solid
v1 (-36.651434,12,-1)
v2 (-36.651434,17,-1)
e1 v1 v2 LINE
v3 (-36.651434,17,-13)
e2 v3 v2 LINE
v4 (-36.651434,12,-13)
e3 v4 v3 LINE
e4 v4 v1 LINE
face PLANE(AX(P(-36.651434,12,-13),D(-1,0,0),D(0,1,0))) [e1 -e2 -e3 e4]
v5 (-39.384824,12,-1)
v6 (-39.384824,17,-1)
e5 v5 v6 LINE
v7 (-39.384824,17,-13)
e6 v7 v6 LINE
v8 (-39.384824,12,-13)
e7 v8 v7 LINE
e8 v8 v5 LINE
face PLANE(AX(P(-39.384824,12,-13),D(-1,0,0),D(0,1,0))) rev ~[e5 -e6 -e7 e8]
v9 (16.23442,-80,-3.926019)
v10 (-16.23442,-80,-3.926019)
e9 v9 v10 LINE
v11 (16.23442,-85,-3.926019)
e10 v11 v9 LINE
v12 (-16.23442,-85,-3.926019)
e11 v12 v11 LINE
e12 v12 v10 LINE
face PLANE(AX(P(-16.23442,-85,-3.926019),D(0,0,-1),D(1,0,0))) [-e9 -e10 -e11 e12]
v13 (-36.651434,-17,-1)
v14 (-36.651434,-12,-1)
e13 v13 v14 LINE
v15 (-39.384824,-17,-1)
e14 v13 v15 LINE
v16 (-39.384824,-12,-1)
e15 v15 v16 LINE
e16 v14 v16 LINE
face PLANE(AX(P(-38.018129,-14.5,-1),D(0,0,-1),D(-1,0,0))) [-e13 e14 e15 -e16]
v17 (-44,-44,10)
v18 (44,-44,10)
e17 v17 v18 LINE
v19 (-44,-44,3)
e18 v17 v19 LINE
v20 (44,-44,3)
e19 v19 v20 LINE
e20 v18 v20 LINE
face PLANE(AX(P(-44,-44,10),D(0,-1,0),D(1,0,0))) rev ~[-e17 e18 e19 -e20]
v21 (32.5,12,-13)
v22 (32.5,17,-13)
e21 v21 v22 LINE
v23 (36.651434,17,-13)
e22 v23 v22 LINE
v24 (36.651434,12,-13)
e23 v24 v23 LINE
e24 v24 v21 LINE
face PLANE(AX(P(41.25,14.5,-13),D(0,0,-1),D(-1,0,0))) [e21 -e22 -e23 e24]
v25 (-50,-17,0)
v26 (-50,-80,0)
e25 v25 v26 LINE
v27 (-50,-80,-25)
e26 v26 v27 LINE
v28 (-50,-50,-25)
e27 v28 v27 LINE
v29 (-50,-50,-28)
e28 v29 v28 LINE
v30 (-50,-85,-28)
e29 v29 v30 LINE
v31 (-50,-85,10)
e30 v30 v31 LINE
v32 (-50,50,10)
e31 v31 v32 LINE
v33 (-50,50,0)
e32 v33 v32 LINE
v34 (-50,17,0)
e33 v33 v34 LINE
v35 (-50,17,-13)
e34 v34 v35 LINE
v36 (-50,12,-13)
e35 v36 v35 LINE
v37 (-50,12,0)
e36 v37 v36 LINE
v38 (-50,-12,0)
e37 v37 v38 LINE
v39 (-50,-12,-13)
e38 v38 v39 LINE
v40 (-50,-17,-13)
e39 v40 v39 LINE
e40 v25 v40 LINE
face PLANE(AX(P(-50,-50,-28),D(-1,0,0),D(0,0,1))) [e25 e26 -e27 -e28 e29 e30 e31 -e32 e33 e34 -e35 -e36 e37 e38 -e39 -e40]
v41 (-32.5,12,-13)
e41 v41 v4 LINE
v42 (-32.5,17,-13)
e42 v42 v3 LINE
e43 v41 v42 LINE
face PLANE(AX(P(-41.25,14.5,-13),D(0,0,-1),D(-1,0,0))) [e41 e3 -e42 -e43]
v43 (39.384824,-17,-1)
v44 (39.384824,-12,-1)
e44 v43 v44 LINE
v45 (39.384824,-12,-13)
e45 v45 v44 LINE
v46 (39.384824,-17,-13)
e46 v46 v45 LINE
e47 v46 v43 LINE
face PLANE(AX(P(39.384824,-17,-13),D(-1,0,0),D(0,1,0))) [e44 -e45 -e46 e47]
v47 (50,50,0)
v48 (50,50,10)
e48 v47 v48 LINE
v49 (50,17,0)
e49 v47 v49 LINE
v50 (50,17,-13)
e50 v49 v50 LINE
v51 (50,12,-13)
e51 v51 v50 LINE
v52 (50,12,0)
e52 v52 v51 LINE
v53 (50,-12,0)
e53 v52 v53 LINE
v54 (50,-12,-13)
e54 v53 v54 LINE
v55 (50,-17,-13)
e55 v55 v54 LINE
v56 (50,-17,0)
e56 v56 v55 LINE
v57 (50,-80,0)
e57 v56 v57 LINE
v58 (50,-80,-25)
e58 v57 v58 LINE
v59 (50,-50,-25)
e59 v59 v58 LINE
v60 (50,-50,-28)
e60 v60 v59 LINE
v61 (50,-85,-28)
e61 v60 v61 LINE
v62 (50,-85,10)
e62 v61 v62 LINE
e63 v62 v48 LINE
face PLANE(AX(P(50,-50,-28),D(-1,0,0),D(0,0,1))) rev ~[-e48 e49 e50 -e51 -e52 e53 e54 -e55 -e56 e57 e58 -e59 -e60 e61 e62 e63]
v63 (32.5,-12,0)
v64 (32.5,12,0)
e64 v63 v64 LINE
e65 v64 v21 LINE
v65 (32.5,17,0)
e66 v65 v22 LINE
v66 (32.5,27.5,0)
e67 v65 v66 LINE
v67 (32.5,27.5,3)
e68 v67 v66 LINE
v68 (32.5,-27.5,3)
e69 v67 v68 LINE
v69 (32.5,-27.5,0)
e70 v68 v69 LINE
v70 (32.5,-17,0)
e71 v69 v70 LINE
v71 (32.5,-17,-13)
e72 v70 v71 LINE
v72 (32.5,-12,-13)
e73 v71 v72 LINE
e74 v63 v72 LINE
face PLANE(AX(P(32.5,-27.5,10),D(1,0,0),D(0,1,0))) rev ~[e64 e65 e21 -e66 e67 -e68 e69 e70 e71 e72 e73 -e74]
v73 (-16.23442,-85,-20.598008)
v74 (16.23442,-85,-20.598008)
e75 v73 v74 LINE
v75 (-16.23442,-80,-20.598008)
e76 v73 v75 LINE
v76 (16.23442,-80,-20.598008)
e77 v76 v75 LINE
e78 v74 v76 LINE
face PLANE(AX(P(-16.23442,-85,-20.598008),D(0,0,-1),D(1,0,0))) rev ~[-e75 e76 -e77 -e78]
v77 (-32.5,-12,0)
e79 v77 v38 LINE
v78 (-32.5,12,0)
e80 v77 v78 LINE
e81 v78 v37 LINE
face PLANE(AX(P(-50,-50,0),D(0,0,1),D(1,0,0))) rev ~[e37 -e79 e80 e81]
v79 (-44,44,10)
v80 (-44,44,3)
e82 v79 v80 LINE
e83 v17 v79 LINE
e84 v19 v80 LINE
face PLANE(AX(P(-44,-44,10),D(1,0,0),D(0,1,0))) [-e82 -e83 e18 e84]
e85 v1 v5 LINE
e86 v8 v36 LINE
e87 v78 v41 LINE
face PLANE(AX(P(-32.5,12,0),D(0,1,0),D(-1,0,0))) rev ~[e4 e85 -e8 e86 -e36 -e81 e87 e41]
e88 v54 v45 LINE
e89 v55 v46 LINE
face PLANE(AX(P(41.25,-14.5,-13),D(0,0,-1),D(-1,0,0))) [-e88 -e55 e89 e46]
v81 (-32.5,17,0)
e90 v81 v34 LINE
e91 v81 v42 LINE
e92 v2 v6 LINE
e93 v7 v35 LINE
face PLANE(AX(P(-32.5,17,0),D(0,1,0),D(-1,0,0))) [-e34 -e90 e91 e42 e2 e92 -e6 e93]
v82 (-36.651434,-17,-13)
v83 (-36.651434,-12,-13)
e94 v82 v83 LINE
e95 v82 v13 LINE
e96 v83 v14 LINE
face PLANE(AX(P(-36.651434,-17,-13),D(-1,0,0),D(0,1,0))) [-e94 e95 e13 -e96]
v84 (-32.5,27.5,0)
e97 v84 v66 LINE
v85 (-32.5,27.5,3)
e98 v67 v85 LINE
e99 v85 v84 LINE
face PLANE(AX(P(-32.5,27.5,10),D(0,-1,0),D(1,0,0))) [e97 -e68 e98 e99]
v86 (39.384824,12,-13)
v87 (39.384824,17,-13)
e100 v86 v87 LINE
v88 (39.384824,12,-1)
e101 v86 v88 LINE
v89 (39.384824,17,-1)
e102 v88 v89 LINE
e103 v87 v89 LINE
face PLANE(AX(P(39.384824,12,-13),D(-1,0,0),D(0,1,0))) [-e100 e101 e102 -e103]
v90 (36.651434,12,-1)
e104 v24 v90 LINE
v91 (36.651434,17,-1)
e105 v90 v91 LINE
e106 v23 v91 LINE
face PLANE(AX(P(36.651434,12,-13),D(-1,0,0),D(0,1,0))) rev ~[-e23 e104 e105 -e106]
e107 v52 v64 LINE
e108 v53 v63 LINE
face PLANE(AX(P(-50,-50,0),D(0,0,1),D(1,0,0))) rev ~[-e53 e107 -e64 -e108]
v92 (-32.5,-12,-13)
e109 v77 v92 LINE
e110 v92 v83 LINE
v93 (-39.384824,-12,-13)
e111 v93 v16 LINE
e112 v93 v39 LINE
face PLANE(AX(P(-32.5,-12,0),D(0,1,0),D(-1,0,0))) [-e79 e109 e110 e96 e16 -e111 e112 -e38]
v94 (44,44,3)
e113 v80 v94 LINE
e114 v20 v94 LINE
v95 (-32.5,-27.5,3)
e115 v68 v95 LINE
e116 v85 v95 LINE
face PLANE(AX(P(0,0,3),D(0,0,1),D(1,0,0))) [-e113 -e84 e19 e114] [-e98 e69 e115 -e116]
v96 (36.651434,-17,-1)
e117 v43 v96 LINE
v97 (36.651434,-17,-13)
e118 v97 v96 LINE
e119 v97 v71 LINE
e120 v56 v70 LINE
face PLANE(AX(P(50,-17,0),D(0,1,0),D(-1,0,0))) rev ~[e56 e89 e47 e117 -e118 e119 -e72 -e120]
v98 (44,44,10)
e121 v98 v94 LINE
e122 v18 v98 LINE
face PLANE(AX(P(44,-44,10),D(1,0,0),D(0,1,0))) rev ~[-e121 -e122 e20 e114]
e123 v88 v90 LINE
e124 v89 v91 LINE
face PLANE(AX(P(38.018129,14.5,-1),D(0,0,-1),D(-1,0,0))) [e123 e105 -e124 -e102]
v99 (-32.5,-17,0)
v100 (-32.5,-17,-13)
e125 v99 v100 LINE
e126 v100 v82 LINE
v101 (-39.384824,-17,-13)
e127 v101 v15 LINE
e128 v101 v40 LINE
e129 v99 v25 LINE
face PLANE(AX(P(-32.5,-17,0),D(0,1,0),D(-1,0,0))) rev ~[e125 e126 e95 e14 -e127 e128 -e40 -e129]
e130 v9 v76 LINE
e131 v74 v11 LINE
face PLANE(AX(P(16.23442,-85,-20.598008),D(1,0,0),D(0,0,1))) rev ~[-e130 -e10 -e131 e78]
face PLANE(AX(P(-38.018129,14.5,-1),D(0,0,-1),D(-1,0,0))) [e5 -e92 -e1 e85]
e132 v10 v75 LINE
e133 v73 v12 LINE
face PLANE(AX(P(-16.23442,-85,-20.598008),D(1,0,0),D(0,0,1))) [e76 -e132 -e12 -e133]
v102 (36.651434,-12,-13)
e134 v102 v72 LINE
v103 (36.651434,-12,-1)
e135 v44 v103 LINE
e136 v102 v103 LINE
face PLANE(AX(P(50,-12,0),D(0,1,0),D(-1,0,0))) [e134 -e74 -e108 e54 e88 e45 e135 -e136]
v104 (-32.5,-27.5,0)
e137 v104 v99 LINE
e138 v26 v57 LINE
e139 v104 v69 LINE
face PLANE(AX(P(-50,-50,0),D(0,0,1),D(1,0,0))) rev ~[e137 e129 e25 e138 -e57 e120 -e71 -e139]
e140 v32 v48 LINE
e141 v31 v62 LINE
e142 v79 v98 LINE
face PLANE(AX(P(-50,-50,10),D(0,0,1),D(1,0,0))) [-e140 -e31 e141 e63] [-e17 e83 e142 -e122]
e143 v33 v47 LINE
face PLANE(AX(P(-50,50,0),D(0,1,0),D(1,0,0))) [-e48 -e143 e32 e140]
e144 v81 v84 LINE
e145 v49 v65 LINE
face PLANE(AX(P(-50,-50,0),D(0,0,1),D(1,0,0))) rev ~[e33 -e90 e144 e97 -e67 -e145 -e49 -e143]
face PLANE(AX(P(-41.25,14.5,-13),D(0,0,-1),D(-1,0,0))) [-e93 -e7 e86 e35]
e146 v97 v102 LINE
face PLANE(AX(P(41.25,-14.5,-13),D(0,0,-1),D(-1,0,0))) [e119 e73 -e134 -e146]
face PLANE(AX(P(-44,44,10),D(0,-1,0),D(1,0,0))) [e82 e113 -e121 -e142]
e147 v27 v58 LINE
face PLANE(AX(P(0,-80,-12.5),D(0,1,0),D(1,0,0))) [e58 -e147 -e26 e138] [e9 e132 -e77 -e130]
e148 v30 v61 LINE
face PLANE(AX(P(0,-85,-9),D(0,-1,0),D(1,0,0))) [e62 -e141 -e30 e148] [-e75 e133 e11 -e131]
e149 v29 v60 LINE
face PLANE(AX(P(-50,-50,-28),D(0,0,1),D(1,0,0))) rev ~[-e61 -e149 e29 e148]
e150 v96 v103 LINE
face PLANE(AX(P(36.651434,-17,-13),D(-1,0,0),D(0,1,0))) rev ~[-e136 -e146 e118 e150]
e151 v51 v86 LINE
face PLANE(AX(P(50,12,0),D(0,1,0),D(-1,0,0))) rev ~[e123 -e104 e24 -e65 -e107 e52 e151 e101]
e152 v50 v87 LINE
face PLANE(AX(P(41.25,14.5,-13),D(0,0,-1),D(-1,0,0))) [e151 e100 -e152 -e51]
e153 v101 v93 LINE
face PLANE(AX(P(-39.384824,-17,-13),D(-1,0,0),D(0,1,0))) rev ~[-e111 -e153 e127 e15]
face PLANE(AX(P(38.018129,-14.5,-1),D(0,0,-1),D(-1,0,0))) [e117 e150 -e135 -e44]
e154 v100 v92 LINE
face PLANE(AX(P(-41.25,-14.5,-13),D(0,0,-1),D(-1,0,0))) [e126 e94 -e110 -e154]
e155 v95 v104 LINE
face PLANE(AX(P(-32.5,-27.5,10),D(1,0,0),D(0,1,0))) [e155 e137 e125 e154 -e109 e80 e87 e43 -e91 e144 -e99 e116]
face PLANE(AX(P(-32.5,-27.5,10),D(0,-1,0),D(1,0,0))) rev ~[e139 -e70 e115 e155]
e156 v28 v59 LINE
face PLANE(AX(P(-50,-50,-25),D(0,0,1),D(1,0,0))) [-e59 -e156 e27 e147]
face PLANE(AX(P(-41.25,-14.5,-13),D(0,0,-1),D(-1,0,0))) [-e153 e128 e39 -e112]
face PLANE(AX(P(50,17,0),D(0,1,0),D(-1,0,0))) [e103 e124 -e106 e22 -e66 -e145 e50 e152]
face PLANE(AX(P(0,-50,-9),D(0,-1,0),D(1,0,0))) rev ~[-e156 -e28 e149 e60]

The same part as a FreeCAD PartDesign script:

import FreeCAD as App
import Part
import Sketcher
Q = App.Units.Quantity


def add_polygon(sketch, points):
    """Adds a closed chain of lines whose ends are joined by coincident constraints."""
    first, n = sketch.GeometryCount, len(points)
    for a, b in zip(points, points[1:] + points[:1]):
        sketch.addGeometry(Part.LineSegment(App.Vector(*a, 0), App.Vector(*b, 0)), False)
    for i in range(n):
        sketch.addConstraint(Sketcher.Constraint("Coincident", first + i, 2, first + (i + 1) % n, 1))

doc = App.newDocument("Part")
body = doc.addObject("PartDesign::Body", "Body")

sketch1 = body.newObject("Sketcher::SketchObject", "Sketch")
sketch1.AttachmentSupport = (doc.getObject("XY_Plane"), [""])
sketch1.MapMode = "FlatFace"
add_polygon(sketch1, [(-50, 50), (-50, -50), (50, -50), (50, 50)])
sketch1.addConstraint([
    Sketcher.Constraint("Vertical", 0),
    Sketcher.Constraint("Horizontal", 1),
    Sketcher.Constraint("Vertical", 2),
    Sketcher.Constraint("Horizontal", 3),
    Sketcher.Constraint("Symmetric", 0, 2, 2, 2, -1, 1),
    Sketcher.Constraint("Equal", 3, 0),
    Sketcher.Constraint("DistanceX", 1, 1, 1, 2, Q("100 mm")),
])
pad1 = body.newObject("PartDesign::Pad", "Pad")
pad1.Profile = sketch1
pad1.Length = 10

sketch2 = body.newObject("Sketcher::SketchObject", "Sketch001")
sketch2.AttachmentSupport = (doc.getObject("XY_Plane"), [""])
sketch2.MapMode = "FlatFace"
sketch2.AttachmentOffset = App.Placement(App.Vector(0, 0, 10), App.Rotation())
add_polygon(sketch2, [(-32, 28), (-32, -28), (32, -28), (32, 28)])
sketch2.addConstraint([
    Sketcher.Constraint("Vertical", 0),
    Sketcher.Constraint("Horizontal", 1),
    Sketcher.Constraint("Vertical", 2),
    Sketcher.Constraint("Horizontal", 3),
    Sketcher.Constraint("Symmetric", 0, 2, 2, 2, -1, 1),
    Sketcher.Constraint("DistanceX", 1, 1, 1, 2, Q("65 mm")),
    Sketcher.Constraint("DistanceY", 0, 2, 0, 1, Q("55 mm")),
])
pocket1 = body.newObject("PartDesign::Pocket", "Pocket")
pocket1.Profile = sketch2
pocket1.Type = "ThroughAll"

sketch3 = body.newObject("Sketcher::SketchObject", "Sketch002")
sketch3.AttachmentSupport = (doc.getObject("XY_Plane"), [""])
sketch3.MapMode = "FlatFace"
sketch3.AttachmentOffset = App.Placement(App.Vector(0, 0, 10), App.Rotation())
add_polygon(sketch3, [(-44, 44), (-44, -44), (44, -44), (44, 44)])
sketch3.addConstraint([
    Sketcher.Constraint("Vertical", 0),
    Sketcher.Constraint("Horizontal", 1),
    Sketcher.Constraint("Vertical", 2),
    Sketcher.Constraint("Horizontal", 3),
    Sketcher.Constraint("Symmetric", 0, 2, 2, 2, -1, 1),
    Sketcher.Constraint("Equal", 3, 0),
    Sketcher.Constraint("DistanceX", 1, 1, 1, 2, Q("88 mm")),
])
pocket2 = body.newObject("PartDesign::Pocket", "Pocket001")
pocket2.Profile = sketch3
pocket2.Length = 7

sketch4 = body.newObject("Sketcher::SketchObject", "Sketch003")
sketch4.AttachmentSupport = (doc.getObject("XZ_Plane"), [""])
sketch4.MapMode = "FlatFace"
sketch4.AttachmentOffset = App.Placement(App.Vector(0, 0, 50), App.Rotation())
add_polygon(sketch4, [(-50, 10), (-50, -28), (50, -28), (50, 10)])
sketch4.addConstraint([
    Sketcher.Constraint("Vertical", 0),
    Sketcher.Constraint("Horizontal", 1),
    Sketcher.Constraint("Vertical", 2),
    Sketcher.Constraint("Horizontal", 3),
    Sketcher.Constraint("DistanceX", 1, 1, 1, 2, Q("100 mm")),
    Sketcher.Constraint("DistanceY", 0, 2, 0, 1, Q("38 mm")),
    Sketcher.Constraint("DistanceX", 0, 2, -1, 1, Q("50 mm")),
    Sketcher.Constraint("DistanceY", 0, 2, -1, 1, Q("28 mm")),
])
pad2 = body.newObject("PartDesign::Pad", "Pad001")
pad2.Profile = sketch4
pad2.Length = 35

sketch5 = body.newObject("Sketcher::SketchObject", "Sketch004")
sketch5.AttachmentSupport = (doc.getObject("XZ_Plane"), [""])
sketch5.MapMode = "FlatFace"
sketch5.AttachmentOffset = App.Placement(App.Vector(0, 0, 50), App.Rotation())
add_polygon(sketch5, [(-50, -25), (-50, 0), (50, 0), (50, -25)])
sketch5.addConstraint([
    Sketcher.Constraint("Vertical", 0),
    Sketcher.Constraint("Horizontal", 1),
    Sketcher.Constraint("Vertical", 2),
    Sketcher.Constraint("Horizontal", 3),
    Sketcher.Constraint("Symmetric", 0, 2, 1, 2, -1, 1),
    Sketcher.Constraint("DistanceX", 1, 1, 1, 2, Q("100 mm")),
    Sketcher.Constraint("DistanceY", 0, 1, 0, 2, Q("25 mm")),
])
pocket3 = body.newObject("PartDesign::Pocket", "Pocket002")
pocket3.Profile = sketch5
pocket3.Length = 30
pocket3.Reversed = True

sketch6 = body.newObject("Sketcher::SketchObject", "Sketch005")
sketch6.AttachmentSupport = (doc.getObject("XY_Plane"), [""])
sketch6.MapMode = "FlatFace"
add_polygon(sketch6, [(50, 17), (50, 12), (32, 12), (32, 17)])
add_polygon(sketch6, [(50, -12), (50, -17), (32, -17), (32, -12)])
add_polygon(sketch6, [(-32, 17), (-32, 12), (-50, 12), (-50, 17)])
add_polygon(sketch6, [(-32, -12), (-32, -17), (-50, -17), (-50, -12)])
sketch6.addConstraint([
    Sketcher.Constraint("Vertical", 0),
    Sketcher.Constraint("Horizontal", 1),
    Sketcher.Constraint("Vertical", 2),
    Sketcher.Constraint("Horizontal", 3),
    Sketcher.Constraint("Vertical", 4),
    Sketcher.Constraint("Horizontal", 5),
    Sketcher.Constraint("Vertical", 6),
    Sketcher.Constraint("Horizontal", 7),
    Sketcher.Constraint("Vertical", 8),
    Sketcher.Constraint("Horizontal", 9),
    Sketcher.Constraint("Vertical", 10),
    Sketcher.Constraint("Horizontal", 11),
    Sketcher.Constraint("Vertical", 12),
    Sketcher.Constraint("Horizontal", 13),
    Sketcher.Constraint("Vertical", 14),
    Sketcher.Constraint("Horizontal", 15),
    Sketcher.Constraint("Symmetric", 6, 2, 8, 2, -1, 1),
    Sketcher.Constraint("Symmetric", 4, 2, 10, 2, -1, 1),
    Sketcher.Constraint("Symmetric", 2, 2, 12, 2, -1, 1),
    Sketcher.Constraint("Symmetric", 0, 2, 14, 2, -1, 1),
    Sketcher.Constraint("Symmetric", 1, 2, 8, 2, -2),
    Sketcher.Constraint("Symmetric", 3, 2, 10, 2, -2),
    Sketcher.Constraint("DistanceY", 0, 2, 0, 1, Q("5 mm")),
    Sketcher.Constraint("DistanceX", 1, 2, 1, 1, Q("17.5 mm")),
    Sketcher.Constraint("DistanceX", -1, 1, 0, 2, Q("50 mm")),
    Sketcher.Constraint("DistanceY", -1, 1, 0, 2, Q("12 mm")),
])
pad3 = body.newObject("PartDesign::Pad", "Pad002")
pad3.Profile = sketch6
pad3.Length = 13
pad3.Reversed = True

sketch7 = body.newObject("Sketcher::SketchObject", "Sketch006")
sketch7.AttachmentSupport = (doc.getObject("XY_Plane"), [""])
sketch7.MapMode = "FlatFace"
sketch7.AttachmentOffset = App.Placement(App.Vector(0, 0, -13), App.Rotation())
add_polygon(sketch7, [(39.4, 17), (39.4, 12), (36.7, 12), (36.7, 17)])
add_polygon(sketch7, [(39.4, -12), (39.4, -17), (36.7, -17), (36.7, -12)])
add_polygon(sketch7, [(-36.7, -12), (-36.7, -17), (-39.4, -17), (-39.4, -12)])
add_polygon(sketch7, [(-36.7, 17), (-36.7, 12), (-39.4, 12), (-39.4, 17)])
sketch7.addConstraint([
    Sketcher.Constraint("Vertical", 0),
    Sketcher.Constraint("Horizontal", 1),
    Sketcher.Constraint("Vertical", 2),
    Sketcher.Constraint("Horizontal", 3),
    Sketcher.Constraint("Vertical", 4),
    Sketcher.Constraint("Horizontal", 5),
    Sketcher.Constraint("Vertical", 6),
    Sketcher.Constraint("Horizontal", 7),
    Sketcher.Constraint("Vertical", 8),
    Sketcher.Constraint("Horizontal", 9),
    Sketcher.Constraint("Vertical", 10),
    Sketcher.Constraint("Horizontal", 11),
    Sketcher.Constraint("Vertical", 12),
    Sketcher.Constraint("Horizontal", 13),
    Sketcher.Constraint("Vertical", 14),
    Sketcher.Constraint("Horizontal", 15),
    Sketcher.Constraint("Symmetric", 2, 2, 8, 2, -1, 1),
    Sketcher.Constraint("Symmetric", 0, 2, 10, 2, -1, 1),
    Sketcher.Constraint("Symmetric", 6, 2, 12, 2, -1, 1),
    Sketcher.Constraint("Symmetric", 4, 2, 14, 2, -1, 1),
    Sketcher.Constraint("Symmetric", 5, 2, 8, 2, -2),
    Sketcher.Constraint("Symmetric", 7, 2, 10, 2, -2),
    Sketcher.Constraint("DistanceY", 0, 2, 0, 1, Q("5 mm")),
    Sketcher.Constraint("DistanceY", -1, 1, 0, 2, Q("12 mm")),
    Sketcher.Constraint("DistanceX", 1, 2, 1, 1, Q("2.733389 mm")),
    Sketcher.Constraint("DistanceX", 8, 2, 5, 2, Q("73.302869 mm")),
])
pocket4 = body.newObject("PartDesign::Pocket", "Pocket003")
pocket4.Profile = sketch7
pocket4.Length = 12
pocket4.Reversed = True

sketch8 = body.newObject("Sketcher::SketchObject", "Sketch007")
sketch8.AttachmentSupport = (doc.getObject("XZ_Plane"), [""])
sketch8.MapMode = "FlatFace"
sketch8.AttachmentOffset = App.Placement(App.Vector(0, 0, 85), App.Rotation())
add_polygon(sketch8, [(-16, -4), (-16, -21), (16, -21), (16, -4)])
sketch8.addConstraint([
    Sketcher.Constraint("Vertical", 0),
    Sketcher.Constraint("Horizontal", 1),
    Sketcher.Constraint("Vertical", 2),
    Sketcher.Constraint("Horizontal", 3),
    Sketcher.Constraint("DistanceX", 1, 1, 1, 2, Q("32.46884 mm")),
    Sketcher.Constraint("DistanceY", 0, 2, 0, 1, Q("16.671989 mm")),
    Sketcher.Constraint("DistanceX", 0, 2, -1, 1, Q("16.23442 mm")),
    Sketcher.Constraint("DistanceY", 0, 2, -1, 1, Q("20.598008 mm")),
])
pocket5 = body.newObject("PartDesign::Pocket", "Pocket004")
pocket5.Profile = sketch8
pocket5.Length = 12

doc.recompute()
